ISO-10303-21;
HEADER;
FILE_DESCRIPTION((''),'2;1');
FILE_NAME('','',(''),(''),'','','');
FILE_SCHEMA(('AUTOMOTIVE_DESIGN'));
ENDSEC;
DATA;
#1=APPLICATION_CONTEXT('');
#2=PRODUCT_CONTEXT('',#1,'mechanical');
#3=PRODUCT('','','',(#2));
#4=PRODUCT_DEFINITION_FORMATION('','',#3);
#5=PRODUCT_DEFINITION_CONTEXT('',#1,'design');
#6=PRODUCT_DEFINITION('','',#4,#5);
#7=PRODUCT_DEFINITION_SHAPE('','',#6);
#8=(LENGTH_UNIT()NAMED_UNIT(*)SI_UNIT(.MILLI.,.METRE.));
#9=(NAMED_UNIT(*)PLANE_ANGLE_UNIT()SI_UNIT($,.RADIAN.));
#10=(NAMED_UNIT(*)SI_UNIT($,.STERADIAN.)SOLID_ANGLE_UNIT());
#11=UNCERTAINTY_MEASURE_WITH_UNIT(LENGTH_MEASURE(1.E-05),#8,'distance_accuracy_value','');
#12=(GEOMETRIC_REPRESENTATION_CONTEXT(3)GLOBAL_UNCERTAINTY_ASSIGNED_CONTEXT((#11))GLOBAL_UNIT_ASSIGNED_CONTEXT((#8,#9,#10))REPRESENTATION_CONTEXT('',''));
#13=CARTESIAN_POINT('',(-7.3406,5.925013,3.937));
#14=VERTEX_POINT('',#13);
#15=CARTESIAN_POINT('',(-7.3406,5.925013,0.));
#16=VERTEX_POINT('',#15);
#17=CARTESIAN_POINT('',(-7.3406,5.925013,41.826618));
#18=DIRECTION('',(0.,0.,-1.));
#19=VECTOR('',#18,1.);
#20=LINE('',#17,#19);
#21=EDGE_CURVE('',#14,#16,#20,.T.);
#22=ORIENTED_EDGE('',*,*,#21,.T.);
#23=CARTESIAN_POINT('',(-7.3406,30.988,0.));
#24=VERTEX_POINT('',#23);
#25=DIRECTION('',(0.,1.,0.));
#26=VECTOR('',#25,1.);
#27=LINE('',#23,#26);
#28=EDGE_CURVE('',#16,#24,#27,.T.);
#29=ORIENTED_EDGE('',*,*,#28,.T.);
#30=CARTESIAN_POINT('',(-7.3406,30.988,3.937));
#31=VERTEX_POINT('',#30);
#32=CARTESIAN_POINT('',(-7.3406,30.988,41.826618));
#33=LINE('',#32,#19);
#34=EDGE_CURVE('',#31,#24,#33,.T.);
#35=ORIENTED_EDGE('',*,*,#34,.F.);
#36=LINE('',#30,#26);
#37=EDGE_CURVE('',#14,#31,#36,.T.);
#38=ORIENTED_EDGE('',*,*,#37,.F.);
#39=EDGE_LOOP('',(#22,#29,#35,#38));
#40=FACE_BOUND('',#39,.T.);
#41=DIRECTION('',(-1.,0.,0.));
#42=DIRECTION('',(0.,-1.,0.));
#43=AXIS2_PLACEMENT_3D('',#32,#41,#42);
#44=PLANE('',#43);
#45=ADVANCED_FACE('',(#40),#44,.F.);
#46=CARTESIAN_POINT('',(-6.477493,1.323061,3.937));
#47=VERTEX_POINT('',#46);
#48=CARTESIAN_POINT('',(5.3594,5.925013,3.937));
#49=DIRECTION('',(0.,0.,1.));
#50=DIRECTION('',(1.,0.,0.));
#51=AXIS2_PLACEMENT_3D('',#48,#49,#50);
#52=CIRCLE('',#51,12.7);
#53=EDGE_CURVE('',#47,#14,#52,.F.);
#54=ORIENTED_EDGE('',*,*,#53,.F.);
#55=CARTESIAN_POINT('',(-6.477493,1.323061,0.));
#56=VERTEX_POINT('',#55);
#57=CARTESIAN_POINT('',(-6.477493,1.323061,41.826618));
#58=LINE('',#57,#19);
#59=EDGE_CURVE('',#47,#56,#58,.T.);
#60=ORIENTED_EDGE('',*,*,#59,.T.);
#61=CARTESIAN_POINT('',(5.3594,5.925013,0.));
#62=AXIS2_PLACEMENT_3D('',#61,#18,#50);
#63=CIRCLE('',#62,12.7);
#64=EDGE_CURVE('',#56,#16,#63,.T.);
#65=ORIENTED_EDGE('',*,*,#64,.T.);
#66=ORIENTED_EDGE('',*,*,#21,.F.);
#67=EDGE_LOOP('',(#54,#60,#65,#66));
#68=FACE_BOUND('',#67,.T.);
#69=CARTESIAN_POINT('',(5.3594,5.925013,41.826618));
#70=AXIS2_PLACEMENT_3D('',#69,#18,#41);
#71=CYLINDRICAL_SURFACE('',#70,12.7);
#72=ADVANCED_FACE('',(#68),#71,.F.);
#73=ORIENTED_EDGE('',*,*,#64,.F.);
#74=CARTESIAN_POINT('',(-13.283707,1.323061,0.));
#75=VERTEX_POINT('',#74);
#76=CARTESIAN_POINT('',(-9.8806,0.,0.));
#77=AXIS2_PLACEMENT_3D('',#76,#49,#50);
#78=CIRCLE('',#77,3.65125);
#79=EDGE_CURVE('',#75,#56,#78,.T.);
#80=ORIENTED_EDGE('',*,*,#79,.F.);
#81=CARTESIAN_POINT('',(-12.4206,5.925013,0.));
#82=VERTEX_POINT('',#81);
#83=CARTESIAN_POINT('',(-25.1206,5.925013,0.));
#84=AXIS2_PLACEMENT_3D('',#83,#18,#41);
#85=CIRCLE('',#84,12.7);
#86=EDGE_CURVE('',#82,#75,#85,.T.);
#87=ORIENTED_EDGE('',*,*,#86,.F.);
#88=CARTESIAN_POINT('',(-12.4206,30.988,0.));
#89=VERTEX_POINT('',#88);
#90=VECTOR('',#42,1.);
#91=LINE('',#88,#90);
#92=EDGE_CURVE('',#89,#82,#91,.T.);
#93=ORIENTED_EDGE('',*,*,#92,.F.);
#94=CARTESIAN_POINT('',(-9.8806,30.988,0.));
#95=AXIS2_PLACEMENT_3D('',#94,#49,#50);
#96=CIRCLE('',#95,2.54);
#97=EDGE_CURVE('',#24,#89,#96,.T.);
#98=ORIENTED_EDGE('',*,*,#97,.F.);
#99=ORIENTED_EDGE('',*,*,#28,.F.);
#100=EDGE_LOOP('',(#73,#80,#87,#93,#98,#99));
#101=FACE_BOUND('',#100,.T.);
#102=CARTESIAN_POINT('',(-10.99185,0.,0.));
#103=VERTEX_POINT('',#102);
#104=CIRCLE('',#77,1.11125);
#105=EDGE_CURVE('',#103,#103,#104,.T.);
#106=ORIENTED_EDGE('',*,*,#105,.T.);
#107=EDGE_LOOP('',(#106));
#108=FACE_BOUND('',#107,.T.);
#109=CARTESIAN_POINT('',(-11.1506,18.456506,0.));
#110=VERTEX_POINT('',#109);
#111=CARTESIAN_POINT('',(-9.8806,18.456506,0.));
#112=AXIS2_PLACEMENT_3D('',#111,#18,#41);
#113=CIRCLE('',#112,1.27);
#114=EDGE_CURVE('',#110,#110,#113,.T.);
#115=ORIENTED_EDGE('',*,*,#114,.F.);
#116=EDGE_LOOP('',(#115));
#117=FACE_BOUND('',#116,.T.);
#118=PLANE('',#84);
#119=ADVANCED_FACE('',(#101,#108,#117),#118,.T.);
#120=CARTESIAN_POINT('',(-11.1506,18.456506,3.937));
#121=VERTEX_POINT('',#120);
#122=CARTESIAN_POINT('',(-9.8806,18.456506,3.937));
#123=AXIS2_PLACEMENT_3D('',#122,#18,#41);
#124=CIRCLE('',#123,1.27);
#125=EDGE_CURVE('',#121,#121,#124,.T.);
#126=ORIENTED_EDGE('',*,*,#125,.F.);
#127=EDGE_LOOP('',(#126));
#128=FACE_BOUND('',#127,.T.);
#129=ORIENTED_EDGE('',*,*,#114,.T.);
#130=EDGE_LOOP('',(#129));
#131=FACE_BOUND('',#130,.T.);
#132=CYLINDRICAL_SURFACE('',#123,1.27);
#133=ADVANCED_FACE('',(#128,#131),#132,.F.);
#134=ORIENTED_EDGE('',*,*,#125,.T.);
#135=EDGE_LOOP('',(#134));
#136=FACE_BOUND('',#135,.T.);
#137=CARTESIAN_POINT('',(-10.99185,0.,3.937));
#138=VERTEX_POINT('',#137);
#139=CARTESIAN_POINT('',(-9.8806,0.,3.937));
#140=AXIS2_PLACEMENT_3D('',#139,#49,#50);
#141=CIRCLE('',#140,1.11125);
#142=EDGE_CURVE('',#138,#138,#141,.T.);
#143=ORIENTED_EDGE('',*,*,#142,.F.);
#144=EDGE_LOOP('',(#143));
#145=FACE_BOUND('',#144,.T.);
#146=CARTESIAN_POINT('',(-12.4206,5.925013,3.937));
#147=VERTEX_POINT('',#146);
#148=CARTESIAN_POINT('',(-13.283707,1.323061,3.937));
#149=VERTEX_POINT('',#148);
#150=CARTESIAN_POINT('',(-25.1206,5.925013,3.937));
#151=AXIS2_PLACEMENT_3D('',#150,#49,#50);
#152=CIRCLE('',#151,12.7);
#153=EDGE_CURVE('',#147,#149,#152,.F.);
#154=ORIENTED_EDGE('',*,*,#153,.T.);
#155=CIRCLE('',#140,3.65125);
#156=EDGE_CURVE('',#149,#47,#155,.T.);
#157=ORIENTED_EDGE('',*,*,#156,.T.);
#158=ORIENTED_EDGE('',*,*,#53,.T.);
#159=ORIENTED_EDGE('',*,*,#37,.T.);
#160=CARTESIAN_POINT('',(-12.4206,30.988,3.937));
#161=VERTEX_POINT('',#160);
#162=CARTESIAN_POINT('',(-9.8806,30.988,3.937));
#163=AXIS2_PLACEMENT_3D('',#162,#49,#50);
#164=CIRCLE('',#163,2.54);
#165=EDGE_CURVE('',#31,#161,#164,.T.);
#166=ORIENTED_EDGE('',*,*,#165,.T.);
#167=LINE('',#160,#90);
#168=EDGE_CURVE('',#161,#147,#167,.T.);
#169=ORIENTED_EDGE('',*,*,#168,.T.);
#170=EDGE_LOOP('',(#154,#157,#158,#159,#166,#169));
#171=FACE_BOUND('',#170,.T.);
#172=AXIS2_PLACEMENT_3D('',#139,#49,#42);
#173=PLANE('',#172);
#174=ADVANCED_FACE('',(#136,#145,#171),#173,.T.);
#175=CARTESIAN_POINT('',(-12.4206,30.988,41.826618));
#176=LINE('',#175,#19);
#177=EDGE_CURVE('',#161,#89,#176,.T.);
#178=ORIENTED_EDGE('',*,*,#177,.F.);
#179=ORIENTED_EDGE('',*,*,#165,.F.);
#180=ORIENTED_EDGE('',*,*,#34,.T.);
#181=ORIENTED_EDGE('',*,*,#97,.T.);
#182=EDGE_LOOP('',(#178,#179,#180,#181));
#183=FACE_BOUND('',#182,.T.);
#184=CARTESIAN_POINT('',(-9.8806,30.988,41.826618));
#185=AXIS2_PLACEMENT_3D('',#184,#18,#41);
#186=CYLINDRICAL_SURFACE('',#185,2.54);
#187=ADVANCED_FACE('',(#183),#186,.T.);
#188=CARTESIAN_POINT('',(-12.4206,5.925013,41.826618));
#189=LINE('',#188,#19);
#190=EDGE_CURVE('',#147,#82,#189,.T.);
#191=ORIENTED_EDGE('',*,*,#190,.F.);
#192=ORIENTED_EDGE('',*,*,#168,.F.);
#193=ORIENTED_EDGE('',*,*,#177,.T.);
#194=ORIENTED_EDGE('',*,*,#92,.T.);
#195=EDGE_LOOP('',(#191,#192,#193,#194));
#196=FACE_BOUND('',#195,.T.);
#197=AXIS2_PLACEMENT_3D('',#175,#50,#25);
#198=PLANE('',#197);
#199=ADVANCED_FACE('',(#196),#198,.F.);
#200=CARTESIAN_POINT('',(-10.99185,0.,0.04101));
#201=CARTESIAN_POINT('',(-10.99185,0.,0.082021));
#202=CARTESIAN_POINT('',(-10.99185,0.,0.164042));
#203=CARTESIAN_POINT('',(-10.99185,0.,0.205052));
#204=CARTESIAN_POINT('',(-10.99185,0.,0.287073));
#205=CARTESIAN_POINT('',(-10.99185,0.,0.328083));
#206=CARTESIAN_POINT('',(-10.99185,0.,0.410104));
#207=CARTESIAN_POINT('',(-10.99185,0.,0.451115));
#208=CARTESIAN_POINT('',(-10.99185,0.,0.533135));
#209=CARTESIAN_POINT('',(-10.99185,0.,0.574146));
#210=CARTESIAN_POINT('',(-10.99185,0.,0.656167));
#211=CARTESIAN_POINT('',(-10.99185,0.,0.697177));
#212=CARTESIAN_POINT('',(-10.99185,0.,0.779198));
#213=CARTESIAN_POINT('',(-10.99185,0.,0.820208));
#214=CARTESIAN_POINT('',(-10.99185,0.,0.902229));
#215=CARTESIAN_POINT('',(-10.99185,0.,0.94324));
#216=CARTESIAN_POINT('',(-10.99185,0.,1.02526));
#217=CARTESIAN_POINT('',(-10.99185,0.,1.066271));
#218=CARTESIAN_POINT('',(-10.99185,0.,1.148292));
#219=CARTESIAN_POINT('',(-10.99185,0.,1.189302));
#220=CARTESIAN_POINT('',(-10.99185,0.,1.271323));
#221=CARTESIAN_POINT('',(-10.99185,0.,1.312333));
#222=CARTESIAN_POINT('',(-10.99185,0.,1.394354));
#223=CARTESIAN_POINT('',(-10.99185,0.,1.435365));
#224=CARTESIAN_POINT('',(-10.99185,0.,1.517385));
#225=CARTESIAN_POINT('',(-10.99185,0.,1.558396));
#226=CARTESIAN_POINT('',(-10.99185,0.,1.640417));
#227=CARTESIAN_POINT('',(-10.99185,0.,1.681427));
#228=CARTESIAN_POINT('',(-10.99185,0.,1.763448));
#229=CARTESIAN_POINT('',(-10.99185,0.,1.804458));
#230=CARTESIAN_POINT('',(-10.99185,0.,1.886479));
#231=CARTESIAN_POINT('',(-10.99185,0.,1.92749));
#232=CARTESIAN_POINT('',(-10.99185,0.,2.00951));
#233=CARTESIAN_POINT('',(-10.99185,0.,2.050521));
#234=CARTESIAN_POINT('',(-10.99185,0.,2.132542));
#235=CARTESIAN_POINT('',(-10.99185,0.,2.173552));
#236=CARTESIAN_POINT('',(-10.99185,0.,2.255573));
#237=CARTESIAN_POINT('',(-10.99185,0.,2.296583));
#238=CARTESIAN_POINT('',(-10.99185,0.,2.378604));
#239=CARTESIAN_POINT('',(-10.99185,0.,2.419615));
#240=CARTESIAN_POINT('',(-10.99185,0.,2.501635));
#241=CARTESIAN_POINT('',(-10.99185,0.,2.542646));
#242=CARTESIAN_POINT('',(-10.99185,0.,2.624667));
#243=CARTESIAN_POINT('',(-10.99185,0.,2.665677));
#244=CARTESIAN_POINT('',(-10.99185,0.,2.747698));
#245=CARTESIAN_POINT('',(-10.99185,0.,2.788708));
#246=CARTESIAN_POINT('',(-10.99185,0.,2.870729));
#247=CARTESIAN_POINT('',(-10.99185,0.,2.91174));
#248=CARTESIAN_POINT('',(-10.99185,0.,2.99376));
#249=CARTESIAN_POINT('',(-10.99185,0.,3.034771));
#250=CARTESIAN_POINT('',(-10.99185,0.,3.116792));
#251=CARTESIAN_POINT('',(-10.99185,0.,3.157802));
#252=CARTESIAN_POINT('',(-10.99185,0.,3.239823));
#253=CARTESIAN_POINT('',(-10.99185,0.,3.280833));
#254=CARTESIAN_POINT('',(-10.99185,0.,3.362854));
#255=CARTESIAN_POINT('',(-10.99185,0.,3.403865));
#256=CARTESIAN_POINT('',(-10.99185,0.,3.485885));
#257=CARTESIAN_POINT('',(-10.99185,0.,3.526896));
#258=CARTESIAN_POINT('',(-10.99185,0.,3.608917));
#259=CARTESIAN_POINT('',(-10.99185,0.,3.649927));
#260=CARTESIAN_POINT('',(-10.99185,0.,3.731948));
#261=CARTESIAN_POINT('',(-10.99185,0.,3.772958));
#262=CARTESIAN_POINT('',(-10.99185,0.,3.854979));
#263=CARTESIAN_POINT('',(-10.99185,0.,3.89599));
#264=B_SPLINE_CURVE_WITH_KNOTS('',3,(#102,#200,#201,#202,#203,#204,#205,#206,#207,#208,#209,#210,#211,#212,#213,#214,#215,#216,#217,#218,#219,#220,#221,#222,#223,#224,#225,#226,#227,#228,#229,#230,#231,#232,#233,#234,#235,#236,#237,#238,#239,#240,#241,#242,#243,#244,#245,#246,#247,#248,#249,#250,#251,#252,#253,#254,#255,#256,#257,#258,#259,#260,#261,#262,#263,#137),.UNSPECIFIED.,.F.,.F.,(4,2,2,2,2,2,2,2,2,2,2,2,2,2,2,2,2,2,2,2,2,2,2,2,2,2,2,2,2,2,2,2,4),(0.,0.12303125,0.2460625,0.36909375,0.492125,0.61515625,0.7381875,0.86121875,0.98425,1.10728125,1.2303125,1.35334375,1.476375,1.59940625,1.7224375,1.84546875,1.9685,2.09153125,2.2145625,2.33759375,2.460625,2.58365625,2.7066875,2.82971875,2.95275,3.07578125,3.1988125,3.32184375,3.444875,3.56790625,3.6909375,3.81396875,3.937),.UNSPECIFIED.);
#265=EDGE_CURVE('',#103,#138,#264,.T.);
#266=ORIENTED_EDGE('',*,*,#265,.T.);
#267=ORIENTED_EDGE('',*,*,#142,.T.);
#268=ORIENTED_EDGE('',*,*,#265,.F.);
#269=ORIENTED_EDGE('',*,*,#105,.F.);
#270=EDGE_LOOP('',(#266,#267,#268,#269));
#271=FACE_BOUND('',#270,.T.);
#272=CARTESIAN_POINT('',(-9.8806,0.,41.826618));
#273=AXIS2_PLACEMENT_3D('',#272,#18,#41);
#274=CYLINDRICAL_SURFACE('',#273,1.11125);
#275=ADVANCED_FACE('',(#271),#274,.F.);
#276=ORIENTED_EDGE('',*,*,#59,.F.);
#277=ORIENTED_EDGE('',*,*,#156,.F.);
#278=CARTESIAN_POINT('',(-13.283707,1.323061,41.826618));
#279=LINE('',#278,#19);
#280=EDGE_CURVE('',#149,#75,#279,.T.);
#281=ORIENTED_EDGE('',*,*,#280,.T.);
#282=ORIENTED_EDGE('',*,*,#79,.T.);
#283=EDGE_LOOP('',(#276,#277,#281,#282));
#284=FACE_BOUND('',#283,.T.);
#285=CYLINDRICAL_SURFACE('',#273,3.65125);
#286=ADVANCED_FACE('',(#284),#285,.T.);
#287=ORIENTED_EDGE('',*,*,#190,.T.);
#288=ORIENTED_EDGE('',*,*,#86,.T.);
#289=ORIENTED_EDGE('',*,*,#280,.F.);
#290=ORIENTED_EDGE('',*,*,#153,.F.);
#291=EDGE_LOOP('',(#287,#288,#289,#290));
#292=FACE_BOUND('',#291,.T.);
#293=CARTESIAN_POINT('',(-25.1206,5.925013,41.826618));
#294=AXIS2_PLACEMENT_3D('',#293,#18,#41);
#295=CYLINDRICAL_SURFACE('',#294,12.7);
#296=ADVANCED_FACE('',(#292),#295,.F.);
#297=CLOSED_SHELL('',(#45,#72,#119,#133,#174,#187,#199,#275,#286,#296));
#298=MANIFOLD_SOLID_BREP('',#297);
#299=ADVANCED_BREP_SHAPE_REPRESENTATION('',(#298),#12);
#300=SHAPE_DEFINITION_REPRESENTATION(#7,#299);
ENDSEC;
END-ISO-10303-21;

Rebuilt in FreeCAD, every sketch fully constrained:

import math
import FreeCAD as App
import Part
import Sketcher
from FreeCAD import Vector
Q = App.Units.Quantity

doc = App.newDocument("Part")
params = doc.addObject("Spreadsheet::Sheet", "Params")
for row, (alias, value) in enumerate([
    ("sketch1_radius", "0.1 in"),
    ("sketch1_radius2", "0.5 in"),
    ("pad1_length", "0.155 in"),
    ("sketch2_diameter", "0.1 in"),
], start=1):
    params.set(f"A{row}", alias)
    params.set(f"B{row}", "=" + value)
    params.setAlias(f"B{row}", alias)

body = doc.addObject("PartDesign::Body", "Body")

sketch1 = doc.addObject("Sketcher::SketchObject", "Sketch")
body.addObject(sketch1)
sketch1.AttachmentSupport = (doc.XY_Plane, [""])
sketch1.MapMode = "FlatFace"
sketch1.addGeometry([
    Part.LineSegment(Vector(-7.3406, 5.925013, 0), Vector(-7.3406, 30.988, 0)),
    Part.ArcOfCircle(Part.Circle(Vector(-9.8806, 30.988, 0), Vector(0, 0, 1), 2.54), math.radians(0), math.radians(180)),
    Part.LineSegment(Vector(-12.4206, 30.988, 0), Vector(-12.4206, 5.925013, 0)),
    Part.ArcOfCircle(Part.Circle(Vector(-25.1206, 5.925013, 0), Vector(0, 0, 1), 12.7), math.radians(-21.245104), math.radians(0)),
    Part.ArcOfCircle(Part.Circle(Vector(-9.8806, 0, 0), Vector(0, 0, 1), 3.65125), math.radians(158.754896), math.radians(381.245104)),
    Part.ArcOfCircle(Part.Circle(Vector(5.3594, 5.925013, 0), Vector(0, 0, 1), 12.7), math.radians(180), math.radians(201.245104)),
    Part.Circle(Vector(-9.8806, 0, 0), Vector(0, 0, 1), 1.11125),
], False)
sketch1.addConstraint([
    Sketcher.Constraint("Tangent", 0, 2, 1, 1),
    Sketcher.Constraint("Tangent", 1, 2, 2, 1),
    Sketcher.Constraint("Tangent", 2, 2, 3, 2),
    Sketcher.Constraint("Tangent", 3, 1, 4, 1),
    Sketcher.Constraint("Tangent", 4, 2, 5, 2),
    Sketcher.Constraint("Tangent", 5, 1, 0, 1),
    Sketcher.Constraint("Vertical", 0),
    Sketcher.Constraint("Vertical", 2),
    Sketcher.Constraint("Coincident", 6, 3, 4, 3),
    Sketcher.Constraint("Equal", 3, 5),
    Sketcher.Constraint("PointOnObject", 4, 3, -1),
    Sketcher.Constraint("Horizontal", 3, 3, 5, 3),
    Sketcher.Constraint("Radius", 1, Q("0.1 in")),
    Sketcher.Constraint("Radius", 3, Q("0.5 in")),
    Sketcher.Constraint("Diameter", 6, Q("0.0875 in")),
    Sketcher.Constraint("DistanceY", -1, 1, 1, 3, Q("1.22 in")),
    Sketcher.Constraint("DistanceX", 1, 3, -1, 1, Q("0.389 in")),
    Sketcher.Constraint("Radius", 4, Q("3.65125 mm")),
])
sketch1.setExpression("Constraints[12]", "Params.sketch1_radius")
sketch1.setExpression("Constraints[13]", "Params.sketch1_radius2")
pad1 = doc.addObject("PartDesign::Pad", "Pad")
body.addObject(pad1)
pad1.Profile = sketch1
pad1.setExpression("Length", "Params.pad1_length")

sketch2 = doc.addObject("Sketcher::SketchObject", "Sketch001")
body.addObject(sketch2)
sketch2.AttachmentSupport = (doc.XY_Plane, [""])
sketch2.MapMode = "FlatFace"
sketch2.addGeometry(Part.Circle(Vector(-9.8806, 18.456506, 0), Vector(0, 0, 1), 1.27), False)
sketch2.addConstraint([
    Sketcher.Constraint("Diameter", 0, Q("0.1 in")),
    Sketcher.Constraint("DistanceX", 0, 3, -1, 1, Q("0.389 in")),
    Sketcher.Constraint("DistanceY", -1, 1, 0, 3, Q("18.456506 mm")),
])
sketch2.setExpression("Constraints[0]", "Params.sketch2_diameter")
pocket1 = doc.addObject("PartDesign::Pocket", "Pocket")
body.addObject(pocket1)
pocket1.Profile = sketch2
pocket1.Type = "ThroughAll"
pocket1.Reversed = True

doc.recompute()
